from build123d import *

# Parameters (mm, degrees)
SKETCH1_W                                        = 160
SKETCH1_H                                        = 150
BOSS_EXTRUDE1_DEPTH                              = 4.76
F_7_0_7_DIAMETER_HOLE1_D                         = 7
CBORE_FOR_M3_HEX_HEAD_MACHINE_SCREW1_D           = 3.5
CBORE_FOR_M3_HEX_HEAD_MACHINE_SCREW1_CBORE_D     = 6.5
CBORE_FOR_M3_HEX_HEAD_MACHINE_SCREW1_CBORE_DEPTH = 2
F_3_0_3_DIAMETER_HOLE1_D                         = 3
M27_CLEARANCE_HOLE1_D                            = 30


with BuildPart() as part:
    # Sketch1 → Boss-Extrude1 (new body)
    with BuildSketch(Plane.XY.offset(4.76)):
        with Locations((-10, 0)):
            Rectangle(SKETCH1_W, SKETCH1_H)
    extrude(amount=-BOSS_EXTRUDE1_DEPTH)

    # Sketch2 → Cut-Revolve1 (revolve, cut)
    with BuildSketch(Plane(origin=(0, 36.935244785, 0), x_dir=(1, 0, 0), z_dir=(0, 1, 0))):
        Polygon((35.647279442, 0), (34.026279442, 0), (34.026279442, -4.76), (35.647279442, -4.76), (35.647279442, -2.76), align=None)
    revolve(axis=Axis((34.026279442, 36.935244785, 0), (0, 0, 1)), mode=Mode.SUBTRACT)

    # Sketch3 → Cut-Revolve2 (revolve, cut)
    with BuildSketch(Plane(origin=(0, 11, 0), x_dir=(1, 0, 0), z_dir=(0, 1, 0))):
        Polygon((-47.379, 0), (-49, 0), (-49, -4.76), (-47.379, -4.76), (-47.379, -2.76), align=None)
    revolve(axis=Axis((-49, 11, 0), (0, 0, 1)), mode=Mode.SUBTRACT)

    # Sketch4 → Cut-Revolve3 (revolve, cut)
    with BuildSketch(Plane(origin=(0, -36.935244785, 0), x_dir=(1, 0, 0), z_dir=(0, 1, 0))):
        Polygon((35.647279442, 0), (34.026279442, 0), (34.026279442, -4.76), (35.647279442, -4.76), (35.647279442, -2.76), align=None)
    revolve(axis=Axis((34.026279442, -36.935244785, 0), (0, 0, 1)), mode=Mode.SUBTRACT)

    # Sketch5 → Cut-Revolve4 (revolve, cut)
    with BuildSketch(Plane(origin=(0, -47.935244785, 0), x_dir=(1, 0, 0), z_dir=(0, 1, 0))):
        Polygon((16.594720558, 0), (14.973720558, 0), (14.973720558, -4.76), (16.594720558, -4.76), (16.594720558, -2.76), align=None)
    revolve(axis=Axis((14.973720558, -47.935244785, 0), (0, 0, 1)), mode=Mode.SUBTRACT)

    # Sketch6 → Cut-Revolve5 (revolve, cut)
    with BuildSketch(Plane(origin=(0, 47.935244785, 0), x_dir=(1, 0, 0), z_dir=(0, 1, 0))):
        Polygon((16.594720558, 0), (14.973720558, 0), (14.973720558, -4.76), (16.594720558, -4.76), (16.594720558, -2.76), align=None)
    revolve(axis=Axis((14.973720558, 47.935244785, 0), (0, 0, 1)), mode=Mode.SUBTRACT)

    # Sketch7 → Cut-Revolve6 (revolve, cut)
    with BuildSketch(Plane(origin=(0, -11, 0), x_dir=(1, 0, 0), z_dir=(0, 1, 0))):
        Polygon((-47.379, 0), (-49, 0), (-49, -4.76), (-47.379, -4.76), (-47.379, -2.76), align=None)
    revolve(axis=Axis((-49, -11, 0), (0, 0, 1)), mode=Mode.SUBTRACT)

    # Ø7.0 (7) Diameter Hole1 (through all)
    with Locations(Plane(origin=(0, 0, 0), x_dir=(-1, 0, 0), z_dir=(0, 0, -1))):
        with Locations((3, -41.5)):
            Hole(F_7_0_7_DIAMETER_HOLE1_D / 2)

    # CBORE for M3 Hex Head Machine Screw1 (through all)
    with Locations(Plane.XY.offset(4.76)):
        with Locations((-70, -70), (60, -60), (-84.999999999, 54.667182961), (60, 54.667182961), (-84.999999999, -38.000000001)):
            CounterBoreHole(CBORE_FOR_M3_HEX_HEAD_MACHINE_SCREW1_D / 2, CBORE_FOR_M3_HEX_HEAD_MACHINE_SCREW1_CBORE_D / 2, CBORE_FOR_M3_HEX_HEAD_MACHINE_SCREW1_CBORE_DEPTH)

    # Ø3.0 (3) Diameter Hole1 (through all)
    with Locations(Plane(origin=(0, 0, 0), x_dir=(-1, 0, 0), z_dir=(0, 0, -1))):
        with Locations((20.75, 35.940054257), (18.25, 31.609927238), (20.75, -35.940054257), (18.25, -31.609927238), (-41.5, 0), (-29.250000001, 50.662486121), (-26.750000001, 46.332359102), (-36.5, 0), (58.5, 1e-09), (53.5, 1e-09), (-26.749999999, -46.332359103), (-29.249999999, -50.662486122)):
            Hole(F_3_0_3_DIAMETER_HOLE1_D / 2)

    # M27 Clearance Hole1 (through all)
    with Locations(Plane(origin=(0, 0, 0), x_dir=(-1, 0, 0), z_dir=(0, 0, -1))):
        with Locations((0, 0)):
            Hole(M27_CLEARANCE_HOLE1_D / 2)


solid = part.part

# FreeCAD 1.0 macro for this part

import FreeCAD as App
import Part
import Sketcher

V = App.Vector

doc = App.newDocument("Part")
body = doc.addObject("PartDesign::Body", "Body")

# Sketch on XY plane
sketch1 = doc.addObject("Sketcher::SketchObject", "Sketch")
body.addObject(sketch1)
sketch1.AttachmentSupport = (doc.XY_Plane, [""])
sketch1.MapMode = "FlatFace"
sketch1.AttachmentOffset = App.Placement(V(0, 0, 4.76), App.Rotation())
sketch1.addGeometry([
    Part.LineSegment(V(-90, 75, 0), V(-90, -75, 0)),
    Part.LineSegment(V(-90, -75, 0), V(70, -75, 0)),
    Part.LineSegment(V(70, -75, 0), V(70, 75, 0)),
    Part.LineSegment(V(70, 75, 0), V(-90, 75, 0)),
], False)
sketch1.addConstraint([
    Sketcher.Constraint("Coincident", 0, 2, 1, 1),
    Sketcher.Constraint("Coincident", 1, 2, 2, 1),
    Sketcher.Constraint("Coincident", 2, 2, 3, 1),
    Sketcher.Constraint("Coincident", 3, 2, 0, 1),
    Sketcher.Constraint("Vertical", 0),
    Sketcher.Constraint("Horizontal", 1),
    Sketcher.Constraint("Vertical", 2),
    Sketcher.Constraint("Horizontal", 3),
    Sketcher.Constraint("DistanceX", 1, 1, 1, 2, 160.0),
    Sketcher.Constraint("DistanceY", 0, 2, 0, 1, 150.0),
    Sketcher.Constraint("DistanceX", 0, 2, -1, 1, 90.0),
    Sketcher.Constraint("DistanceY", 0, 2, -1, 1, 75.0),
])
pad1 = doc.addObject("PartDesign::Pad", "Pad")
body.addObject(pad1)
pad1.Profile = sketch1
pad1.Length = 4.76
pad1.Reversed = True

# Sketch on XZ plane
sketch2 = doc.addObject("Sketcher::SketchObject", "Sketch001")
body.addObject(sketch2)
sketch2.AttachmentSupport = (doc.XZ_Plane, [""])
sketch2.MapMode = "FlatFace"
sketch2.AttachmentOffset = App.Placement(V(0, 0, -36.935245), App.Rotation())
sketch2.addGeometry([
    Part.LineSegment(V(35.6, 0, 0), V(34, 0, 0)),
    Part.LineSegment(V(34, 0, 0), V(34, 4.8, 0)),
    Part.LineSegment(V(34, 4.8, 0), V(35.6, 4.8, 0)),
    Part.LineSegment(V(35.6, 4.8, 0), V(35.6, 0, 0)),
], False)
sketch2.addGeometry(Part.LineSegment(V(34, 0, 0), V(34, 4.8, 0)), True)  # axis
sketch2.addConstraint([
    Sketcher.Constraint("Coincident", 0, 2, 1, 1),
    Sketcher.Constraint("Coincident", 1, 2, 2, 1),
    Sketcher.Constraint("Coincident", 2, 2, 3, 1),
    Sketcher.Constraint("Coincident", 3, 2, 0, 1),
    Sketcher.Constraint("Horizontal", 0),
    Sketcher.Constraint("Vertical", 1),
    Sketcher.Constraint("Horizontal", 2),
    Sketcher.Constraint("Vertical", 3),
    Sketcher.Constraint("Vertical", 4),
    Sketcher.Constraint("Coincident", 4, 1, 0, 2),
    Sketcher.Constraint("PointOnObject", 0, 2, -1),
    Sketcher.Constraint("Horizontal", 2, 2, 4, 2),
    Sketcher.Constraint("DistanceY", 1, 1, 1, 2, 4.76),
    Sketcher.Constraint("DistanceX", 0, 2, 0, 1, 1.621),
    Sketcher.Constraint("DistanceX", -1, 1, 0, 2, 34.026279),
])
groove = doc.addObject("PartDesign::Groove", "Groove")
body.addObject(groove)
groove.Profile = sketch2
groove.ReferenceAxis = (sketch2, ["Axis0"])
groove.Angle = 360

# Sketch on XZ plane
sketch3 = doc.addObject("Sketcher::SketchObject", "Sketch002")
body.addObject(sketch3)
sketch3.AttachmentSupport = (doc.XZ_Plane, [""])
sketch3.MapMode = "FlatFace"
sketch3.AttachmentOffset = App.Placement(V(0, 0, -11), App.Rotation())
sketch3.addGeometry([
    Part.LineSegment(V(-47.4, 0, 0), V(-49, 0, 0)),
    Part.LineSegment(V(-49, 0, 0), V(-49, 4.8, 0)),
    Part.LineSegment(V(-49, 4.8, 0), V(-47.4, 4.8, 0)),
    Part.LineSegment(V(-47.4, 4.8, 0), V(-47.4, 0, 0)),
], False)
sketch3.addGeometry(Part.LineSegment(V(-49, 0, 0), V(-49, 4.8, 0)), True)  # axis
sketch3.addConstraint([
    Sketcher.Constraint("Coincident", 0, 2, 1, 1),
    Sketcher.Constraint("Coincident", 1, 2, 2, 1),
    Sketcher.Constraint("Coincident", 2, 2, 3, 1),
    Sketcher.Constraint("Coincident", 3, 2, 0, 1),
    Sketcher.Constraint("Horizontal", 0),
    Sketcher.Constraint("Vertical", 1),
    Sketcher.Constraint("Horizontal", 2),
    Sketcher.Constraint("Vertical", 3),
    Sketcher.Constraint("Vertical", 4),
    Sketcher.Constraint("Coincident", 4, 1, 0, 2),
    Sketcher.Constraint("PointOnObject", 0, 2, -1),
    Sketcher.Constraint("Horizontal", 2, 2, 4, 2),
    Sketcher.Constraint("DistanceX", 0, 2, -1, 1, 49.0),
    Sketcher.Constraint("DistanceY", 1, 1, 1, 2, 4.76),
    Sketcher.Constraint("DistanceX", 0, 2, 0, 1, 1.621),
])
groove2 = doc.addObject("PartDesign::Groove", "Groove001")
body.addObject(groove2)
groove2.Profile = sketch3
groove2.ReferenceAxis = (sketch3, ["Axis0"])
groove2.Angle = 360

# Sketch on XZ plane
sketch4 = doc.addObject("Sketcher::SketchObject", "Sketch003")
body.addObject(sketch4)
sketch4.AttachmentSupport = (doc.XZ_Plane, [""])
sketch4.MapMode = "FlatFace"
sketch4.AttachmentOffset = App.Placement(V(0, 0, 36.935245), App.Rotation())
sketch4.addGeometry([
    Part.LineSegment(V(35.6, 0, 0), V(34, 0, 0)),
    Part.LineSegment(V(34, 0, 0), V(34, 4.8, 0)),
    Part.LineSegment(V(34, 4.8, 0), V(35.6, 4.8, 0)),
    Part.LineSegment(V(35.6, 4.8, 0), V(35.6, 0, 0)),
], False)
sketch4.addGeometry(Part.LineSegment(V(34, 0, 0), V(34, 4.8, 0)), True)  # axis
sketch4.addConstraint([
    Sketcher.Constraint("Coincident", 0, 2, 1, 1),
    Sketcher.Constraint("Coincident", 1, 2, 2, 1),
    Sketcher.Constraint("Coincident", 2, 2, 3, 1),
    Sketcher.Constraint("Coincident", 3, 2, 0, 1),
    Sketcher.Constraint("Horizontal", 0),
    Sketcher.Constraint("Vertical", 1),
    Sketcher.Constraint("Horizontal", 2),
    Sketcher.Constraint("Vertical", 3),
    Sketcher.Constraint("Vertical", 4),
    Sketcher.Constraint("Coincident", 4, 1, 0, 2),
    Sketcher.Constraint("PointOnObject", 0, 2, -1),
    Sketcher.Constraint("Horizontal", 2, 2, 4, 2),
    Sketcher.Constraint("DistanceY", 1, 1, 1, 2, 4.76),
    Sketcher.Constraint("DistanceX", 0, 2, 0, 1, 1.621),
    Sketcher.Constraint("DistanceX", -1, 1, 0, 2, 34.026279),
])
groove3 = doc.addObject("PartDesign::Groove", "Groove002")
body.addObject(groove3)
groove3.Profile = sketch4
groove3.ReferenceAxis = (sketch4, ["Axis0"])
groove3.Angle = 360

# Sketch on XZ plane
sketch5 = doc.addObject("Sketcher::SketchObject", "Sketch004")
body.addObject(sketch5)
sketch5.AttachmentSupport = (doc.XZ_Plane, [""])
sketch5.MapMode = "FlatFace"
sketch5.AttachmentOffset = App.Placement(V(0, 0, 47.935245), App.Rotation())
sketch5.addGeometry([
    Part.LineSegment(V(16.6, 0, 0), V(15, 0, 0)),
    Part.LineSegment(V(15, 0, 0), V(15, 4.8, 0)),
    Part.LineSegment(V(15, 4.8, 0), V(16.6, 4.8, 0)),
    Part.LineSegment(V(16.6, 4.8, 0), V(16.6, 0, 0)),
], False)
sketch5.addGeometry(Part.LineSegment(V(15, 0, 0), V(15, 4.8, 0)), True)  # axis
sketch5.addConstraint([
    Sketcher.Constraint("Coincident", 0, 2, 1, 1),
    Sketcher.Constraint("Coincident", 1, 2, 2, 1),
    Sketcher.Constraint("Coincident", 2, 2, 3, 1),
    Sketcher.Constraint("Coincident", 3, 2, 0, 1),
    Sketcher.Constraint("Horizontal", 0),
    Sketcher.Constraint("Vertical", 1),
    Sketcher.Constraint("Horizontal", 2),
    Sketcher.Constraint("Vertical", 3),
    Sketcher.Constraint("Vertical", 4),
    Sketcher.Constraint("Coincident", 4, 1, 0, 2),
    Sketcher.Constraint("PointOnObject", 0, 2, -1),
    Sketcher.Constraint("Horizontal", 2, 2, 4, 2),
    Sketcher.Constraint("DistanceY", 1, 1, 1, 2, 4.76),
    Sketcher.Constraint("DistanceX", 0, 2, 0, 1, 1.621),
    Sketcher.Constraint("DistanceX", -1, 1, 0, 2, 14.973721),
])
groove4 = doc.addObject("PartDesign::Groove", "Groove003")
body.addObject(groove4)
groove4.Profile = sketch5
groove4.ReferenceAxis = (sketch5, ["Axis0"])
groove4.Angle = 360

# Sketch on XZ plane
sketch6 = doc.addObject("Sketcher::SketchObject", "Sketch005")
body.addObject(sketch6)
sketch6.AttachmentSupport = (doc.XZ_Plane, [""])
sketch6.MapMode = "FlatFace"
sketch6.AttachmentOffset = App.Placement(V(0, 0, -47.935245), App.Rotation())
sketch6.addGeometry([
    Part.LineSegment(V(16.6, 0, 0), V(15, 0, 0)),
    Part.LineSegment(V(15, 0, 0), V(15, 4.8, 0)),
    Part.LineSegment(V(15, 4.8, 0), V(16.6, 4.8, 0)),
    Part.LineSegment(V(16.6, 4.8, 0), V(16.6, 0, 0)),
], False)
sketch6.addGeometry(Part.LineSegment(V(15, 0, 0), V(15, 4.8, 0)), True)  # axis
sketch6.addConstraint([
    Sketcher.Constraint("Coincident", 0, 2, 1, 1),
    Sketcher.Constraint("Coincident", 1, 2, 2, 1),
    Sketcher.Constraint("Coincident", 2, 2, 3, 1),
    Sketcher.Constraint("Coincident", 3, 2, 0, 1),
    Sketcher.Constraint("Horizontal", 0),
    Sketcher.Constraint("Vertical", 1),
    Sketcher.Constraint("Horizontal", 2),
    Sketcher.Constraint("Vertical", 3),
    Sketcher.Constraint("Vertical", 4),
    Sketcher.Constraint("Coincident", 4, 1, 0, 2),
    Sketcher.Constraint("PointOnObject", 0, 2, -1),
    Sketcher.Constraint("Horizontal", 2, 2, 4, 2),
    Sketcher.Constraint("DistanceY", 1, 1, 1, 2, 4.76),
    Sketcher.Constraint("DistanceX", 0, 2, 0, 1, 1.621),
    Sketcher.Constraint("DistanceX", -1, 1, 0, 2, 14.973721),
])
groove5 = doc.addObject("PartDesign::Groove", "Groove004")
body.addObject(groove5)
groove5.Profile = sketch6
groove5.ReferenceAxis = (sketch6, ["Axis0"])
groove5.Angle = 360

# Sketch on XZ plane
sketch7 = doc.addObject("Sketcher::SketchObject", "Sketch006")
body.addObject(sketch7)
sketch7.AttachmentSupport = (doc.XZ_Plane, [""])
sketch7.MapMode = "FlatFace"
sketch7.AttachmentOffset = App.Placement(V(0, 0, 11), App.Rotation())
sketch7.addGeometry([
    Part.LineSegment(V(-47.4, 0, 0), V(-49, 0, 0)),
    Part.LineSegment(V(-49, 0, 0), V(-49, 4.8, 0)),
    Part.LineSegment(V(-49, 4.8, 0), V(-47.4, 4.8, 0)),
    Part.LineSegment(V(-47.4, 4.8, 0), V(-47.4, 0, 0)),
], False)
sketch7.addGeometry(Part.LineSegment(V(-49, 0, 0), V(-49, 4.8, 0)), True)  # axis
sketch7.addConstraint([
    Sketcher.Constraint("Coincident", 0, 2, 1, 1),
    Sketcher.Constraint("Coincident", 1, 2, 2, 1),
    Sketcher.Constraint("Coincident", 2, 2, 3, 1),
    Sketcher.Constraint("Coincident", 3, 2, 0, 1),
    Sketcher.Constraint("Horizontal", 0),
    Sketcher.Constraint("Vertical", 1),
    Sketcher.Constraint("Horizontal", 2),
    Sketcher.Constraint("Vertical", 3),
    Sketcher.Constraint("Vertical", 4),
    Sketcher.Constraint("Coincident", 4, 1, 0, 2),
    Sketcher.Constraint("PointOnObject", 0, 2, -1),
    Sketcher.Constraint("Horizontal", 2, 2, 4, 2),
    Sketcher.Constraint("DistanceX", 0, 2, -1, 1, 49.0),
    Sketcher.Constraint("DistanceY", 1, 1, 1, 2, 4.76),
    Sketcher.Constraint("DistanceX", 0, 2, 0, 1, 1.621),
])
groove6 = doc.addObject("PartDesign::Groove", "Groove005")
body.addObject(groove6)
groove6.Profile = sketch7
groove6.ReferenceAxis = (sketch7, ["Axis0"])
groove6.Angle = 360

# Sketch on XY plane
sketch8 = doc.addObject("Sketcher::SketchObject", "Sketch007")
body.addObject(sketch8)
sketch8.AttachmentSupport = (doc.XY_Plane, [""])
sketch8.MapMode = "FlatFace"
sketch8.addGeometry(Part.Circle(V(-3, -41.5, 0), V(0, 0, 1), 3.5), False)
sketch8.addConstraint([
    Sketcher.Constraint("Diameter", 0, 7.0),
    Sketcher.Constraint("DistanceX", 0, 3, -1, 1, 3.0),
    Sketcher.Constraint("DistanceY", 0, 3, -1, 1, 41.5),
])
doc.recompute()
hole = doc.addObject("PartDesign::Hole", "Hole")
body.addObject(hole)
hole.Profile = sketch8
hole.ThreadType = "None"
hole.Diameter = 7
hole.DepthType = "ThroughAll"
hole.Reversed = True

# Sketch on XY plane
sketch9 = doc.addObject("Sketcher::SketchObject", "Sketch008")
body.addObject(sketch9)
sketch9.AttachmentSupport = (doc.XY_Plane, [""])
sketch9.MapMode = "FlatFace"
sketch9.AttachmentOffset = App.Placement(V(0, 0, 4.76), App.Rotation())
sketch9.addGeometry([
    Part.Circle(V(-70, -70, 0), V(0, 0, 1), 1.8),  # 0
    Part.Circle(V(60, -60, 0), V(0, 0, 1), 1.8),  # 1
    Part.Circle(V(-85, 54.7, 0), V(0, 0, 1), 1.8),  # 2
    Part.Circle(V(60, 54.7, 0), V(0, 0, 1), 1.8),  # 3
    Part.Circle(V(-85, -38, 0), V(0, 0, 1), 1.8),  # 4
], False)
sketch9.addConstraint([
    Sketcher.Constraint("Equal", 0, 1),
    Sketcher.Constraint("Equal", 1, 2),
    Sketcher.Constraint("Equal", 2, 3),
    Sketcher.Constraint("Equal", 3, 4),
    Sketcher.Constraint("Horizontal", 2, 3, 3, 3),
    Sketcher.Constraint("Vertical", 1, 3, 3, 3),
    Sketcher.Constraint("Vertical", 2, 3, 4, 3),
    Sketcher.Constraint("Diameter", 0, 3.5),
    Sketcher.Constraint("DistanceX", 0, 3, -1, 1, 70.0),
    Sketcher.Constraint("DistanceY", 0, 3, -1, 1, 70.0),
    Sketcher.Constraint("DistanceX", -1, 1, 1, 3, 60.0),
    Sketcher.Constraint("DistanceY", 1, 3, -1, 1, 60.0),
    Sketcher.Constraint("DistanceX", 2, 3, -1, 1, 85.0),
    Sketcher.Constraint("DistanceY", 4, 3, -1, 1, 38.0),
    Sketcher.Constraint("DistanceY", -1, 1, 2, 3, 54.667183),
])
doc.recompute()
hole2 = doc.addObject("PartDesign::Hole", "Hole001")
body.addObject(hole2)
hole2.Profile = sketch9
hole2.ThreadType = "None"
hole2.Diameter = 3.5
hole2.DepthType = "ThroughAll"
hole2.HoleCutType = "Counterbore"
hole2.HoleCutDiameter = 6.5
hole2.HoleCutDepth = 2

# Sketch on XY plane
sketch10 = doc.addObject("Sketcher::SketchObject", "Sketch009")
body.addObject(sketch10)
sketch10.AttachmentSupport = (doc.XY_Plane, [""])
sketch10.MapMode = "FlatFace"
sketch10.addGeometry([
    Part.Circle(V(-20.8, 35.9, 0), V(0, 0, 1), 1.5),  # 0
    Part.Circle(V(-18.2, 31.6, 0), V(0, 0, 1), 1.5),  # 1
    Part.Circle(V(-20.8, -35.9, 0), V(0, 0, 1), 1.5),  # 2
    Part.Circle(V(-18.2, -31.6, 0), V(0, 0, 1), 1.5),  # 3
    Part.Circle(V(41.5, 0, 0), V(0, 0, 1), 1.5),  # 4
    Part.Circle(V(29.3, 50.7, 0), V(0, 0, 1), 1.5),  # 5
    Part.Circle(V(26.8, 46.3, 0), V(0, 0, 1), 1.5),  # 6
    Part.Circle(V(36.5, 0, 0), V(0, 0, 1), 1.5),  # 7
    Part.Circle(V(-58.5, 0, 0), V(0, 0, 1), 1.5),  # 8
    Part.Circle(V(-53.5, 0, 0), V(0, 0, 1), 1.5),  # 9
    Part.Circle(V(26.7, -46.3, 0), V(0, 0, 1), 1.5),  # 10
    Part.Circle(V(29.2, -50.7, 0), V(0, 0, 1), 1.5),  # 11
], False)
sketch10.addConstraint([
    Sketcher.Constraint("Equal", 0, 1),
    Sketcher.Constraint("Equal", 1, 2),
    Sketcher.Constraint("Equal", 2, 3),
    Sketcher.Constraint("Equal", 3, 4),
    Sketcher.Constraint("Equal", 4, 5),
    Sketcher.Constraint("Equal", 5, 6),
    Sketcher.Constraint("Equal", 6, 7),
    Sketcher.Constraint("Equal", 7, 8),
    Sketcher.Constraint("Equal", 8, 9),
    Sketcher.Constraint("Equal", 9, 10),
    Sketcher.Constraint("Equal", 10, 11),
    Sketcher.Constraint("Symmetric", 0, 3, 2, 3, -1),
    Sketcher.Constraint("Symmetric", 1, 3, 3, 3, -1),
    Sketcher.Constraint("Symmetric", 6, 3, 10, 3, -1),
    Sketcher.Constraint("Symmetric", 5, 3, 11, 3, -1),
    Sketcher.Constraint("PointOnObject", 4, 3, -1),
    Sketcher.Constraint("PointOnObject", 7, 3, -1),
    Sketcher.Constraint("PointOnObject", 8, 3, -1),
    Sketcher.Constraint("PointOnObject", 9, 3, -1),
    Sketcher.Constraint("Diameter", 0, 3.0),
    Sketcher.Constraint("DistanceX", 0, 3, 5, 3, 50.0),
    Sketcher.Constraint("DistanceX", 1, 3, 6, 3, 45.0),
    Sketcher.Constraint("DistanceX", 7, 3, 4, 3, 5.0),
    Sketcher.Constraint("DistanceX", 8, 3, 7, 3, 95.0),
    Sketcher.Constraint("DistanceX", 8, 3, 9, 3, 5.0),
    Sketcher.Constraint("DistanceX", -1, 1, 4, 3, 41.5),
    Sketcher.Constraint("DistanceX", 0, 3, 1, 3, 2.5),
    Sketcher.Constraint("DistanceX", 0, 3, -1, 1, 20.75),
    Sketcher.Constraint("DistanceY", -1, 1, 6, 3, 46.332359),
    Sketcher.Constraint("DistanceY", 2, 3, 1, 3, 67.549981),
    Sketcher.Constraint("DistanceY", 2, 3, 0, 3, 71.880109),
    Sketcher.Constraint("DistanceY", 1, 3, 5, 3, 19.052559),
])
doc.recompute()
hole3 = doc.addObject("PartDesign::Hole", "Hole002")
body.addObject(hole3)
hole3.Profile = sketch10
hole3.ThreadType = "None"
hole3.Diameter = 3
hole3.DepthType = "ThroughAll"
hole3.Reversed = True

# Sketch on XY plane
sketch11 = doc.addObject("Sketcher::SketchObject", "Sketch010")
body.addObject(sketch11)
sketch11.AttachmentSupport = (doc.XY_Plane, [""])
sketch11.MapMode = "FlatFace"
sketch11.addGeometry(Part.Circle(V(0, 0, 0), V(0, 0, 1), 15), False)
sketch11.addConstraint([
    Sketcher.Constraint("Coincident", 0, 3, -1, 1),
    Sketcher.Constraint("Diameter", 0, 30.0),
])
doc.recompute()
hole4 = doc.addObject("PartDesign::Hole", "Hole003")
body.addObject(hole4)
hole4.Profile = sketch11
hole4.ThreadType = "None"
hole4.Diameter = 30
hole4.DepthType = "ThroughAll"
hole4.Reversed = True

doc.recompute()
